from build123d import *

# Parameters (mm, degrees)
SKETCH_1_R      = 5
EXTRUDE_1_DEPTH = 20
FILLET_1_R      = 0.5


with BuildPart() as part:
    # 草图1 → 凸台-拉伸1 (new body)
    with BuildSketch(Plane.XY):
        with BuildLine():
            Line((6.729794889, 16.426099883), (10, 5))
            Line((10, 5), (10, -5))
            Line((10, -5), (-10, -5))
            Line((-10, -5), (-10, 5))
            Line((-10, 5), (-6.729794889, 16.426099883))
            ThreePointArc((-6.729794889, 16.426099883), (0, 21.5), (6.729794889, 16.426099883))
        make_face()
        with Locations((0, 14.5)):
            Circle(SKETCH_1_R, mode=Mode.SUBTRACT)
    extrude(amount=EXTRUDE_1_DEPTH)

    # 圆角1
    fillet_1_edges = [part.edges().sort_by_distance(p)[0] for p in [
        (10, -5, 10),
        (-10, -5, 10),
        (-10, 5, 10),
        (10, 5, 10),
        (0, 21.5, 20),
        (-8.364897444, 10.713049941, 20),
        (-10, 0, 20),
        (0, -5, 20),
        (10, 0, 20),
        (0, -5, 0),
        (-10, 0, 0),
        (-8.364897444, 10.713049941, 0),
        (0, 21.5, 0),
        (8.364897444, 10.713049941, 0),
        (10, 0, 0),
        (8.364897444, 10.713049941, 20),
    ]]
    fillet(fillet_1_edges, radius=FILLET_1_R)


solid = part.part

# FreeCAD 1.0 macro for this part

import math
import FreeCAD as App
import Part
import Sketcher
from FreeCAD import Vector


def edges_at(feature, points):
    """Names of the edges that pass closest to the given points."""
    edges = feature.Shape.Edges
    near = lambda p: min(range(len(edges)), key=lambda i: edges[i].distToShape(Part.Vertex(*p))[0])
    return sorted({f"Edge{near(p) + 1}" for p in points})

doc = App.newDocument("Part")
body = doc.addObject("PartDesign::Body", "Body")

# Sketch on XY plane
sketch1 = body.newObject("Sketcher::SketchObject", "Sketch")
sketch1.AttachmentSupport = (doc.getObject("XY_Plane"), [""])
sketch1.MapMode = "FlatFace"
sketch1.addGeometry([
    Part.LineSegment(Vector(10, 5, 0), Vector(7, 16, 0)),  # 0
    Part.ArcOfCircle(Part.Circle(Vector(0, 14, 0), Vector(0, 0, 1), 7), math.radians(16), math.radians(164)),  # 1
    Part.LineSegment(Vector(-7, 16, 0), Vector(-10, 5, 0)),  # 2
    Part.LineSegment(Vector(-10, 5, 0), Vector(-10, -5, 0)),  # 3
    Part.LineSegment(Vector(-10, -5, 0), Vector(10, -5, 0)),  # 4
    Part.LineSegment(Vector(10, -5, 0), Vector(10, 5, 0)),  # 5
    Part.Circle(Vector(0, 14, 0), Vector(0, 0, 1), 5),  # 6
], False)
sketch1.addConstraint([
    Sketcher.Constraint("Tangent", 0, 2, 1, 1),
    Sketcher.Constraint("Tangent", 1, 2, 2, 1),
    Sketcher.Constraint("Coincident", 2, 2, 3, 1),
    Sketcher.Constraint("Coincident", 3, 2, 4, 1),
    Sketcher.Constraint("Coincident", 4, 2, 5, 1),
    Sketcher.Constraint("Coincident", 5, 2, 0, 1),
    Sketcher.Constraint("Vertical", 3),
    Sketcher.Constraint("Horizontal", 4),
    Sketcher.Constraint("Vertical", 5),
    Sketcher.Constraint("Coincident", 6, 3, 1, 3),
    Sketcher.Constraint("Symmetric", 2, 2, 4, 2, -1, 1),
    Sketcher.Constraint("Symmetric", 0, 2, 1, 2, -2),
    Sketcher.Constraint("Diameter", 6, 10.0),
    Sketcher.Constraint("Radius", 1, 7.0),
    Sketcher.Constraint("DistanceX", 4, 1, 4, 2, 20.0),
    Sketcher.Constraint("DistanceY", 3, 2, 3, 1, 10.0),
    Sketcher.Constraint("DistanceY", -1, 1, 1, 3, 14.5),
])
pad1 = body.newObject("PartDesign::Pad", "Pad")
pad1.Profile = sketch1
pad1.Length = 20
doc.recompute()

fillet = body.newObject("PartDesign::Fillet", "Fillet")
fillet.Base = (pad1, edges_at(pad1, [
    (10, -5, 10),
    (-10, -5, 10),
    (-10, 5, 10),
    (10, 5, 10),
    (0, 21.5, 20),
    (-8.365, 10.713, 20),
    (-10, 0, 20),
    (0, -5, 20),
    (10, 0, 20),
    (0, -5, 0),
    (-10, 0, 0),
    (-8.365, 10.713, 0),
    (0, 21.5, 0),
    (8.365, 10.713, 0),
    (10, 0, 0),
    (8.365, 10.713, 20),
]))
fillet.Radius = 0.5

doc.recompute()
